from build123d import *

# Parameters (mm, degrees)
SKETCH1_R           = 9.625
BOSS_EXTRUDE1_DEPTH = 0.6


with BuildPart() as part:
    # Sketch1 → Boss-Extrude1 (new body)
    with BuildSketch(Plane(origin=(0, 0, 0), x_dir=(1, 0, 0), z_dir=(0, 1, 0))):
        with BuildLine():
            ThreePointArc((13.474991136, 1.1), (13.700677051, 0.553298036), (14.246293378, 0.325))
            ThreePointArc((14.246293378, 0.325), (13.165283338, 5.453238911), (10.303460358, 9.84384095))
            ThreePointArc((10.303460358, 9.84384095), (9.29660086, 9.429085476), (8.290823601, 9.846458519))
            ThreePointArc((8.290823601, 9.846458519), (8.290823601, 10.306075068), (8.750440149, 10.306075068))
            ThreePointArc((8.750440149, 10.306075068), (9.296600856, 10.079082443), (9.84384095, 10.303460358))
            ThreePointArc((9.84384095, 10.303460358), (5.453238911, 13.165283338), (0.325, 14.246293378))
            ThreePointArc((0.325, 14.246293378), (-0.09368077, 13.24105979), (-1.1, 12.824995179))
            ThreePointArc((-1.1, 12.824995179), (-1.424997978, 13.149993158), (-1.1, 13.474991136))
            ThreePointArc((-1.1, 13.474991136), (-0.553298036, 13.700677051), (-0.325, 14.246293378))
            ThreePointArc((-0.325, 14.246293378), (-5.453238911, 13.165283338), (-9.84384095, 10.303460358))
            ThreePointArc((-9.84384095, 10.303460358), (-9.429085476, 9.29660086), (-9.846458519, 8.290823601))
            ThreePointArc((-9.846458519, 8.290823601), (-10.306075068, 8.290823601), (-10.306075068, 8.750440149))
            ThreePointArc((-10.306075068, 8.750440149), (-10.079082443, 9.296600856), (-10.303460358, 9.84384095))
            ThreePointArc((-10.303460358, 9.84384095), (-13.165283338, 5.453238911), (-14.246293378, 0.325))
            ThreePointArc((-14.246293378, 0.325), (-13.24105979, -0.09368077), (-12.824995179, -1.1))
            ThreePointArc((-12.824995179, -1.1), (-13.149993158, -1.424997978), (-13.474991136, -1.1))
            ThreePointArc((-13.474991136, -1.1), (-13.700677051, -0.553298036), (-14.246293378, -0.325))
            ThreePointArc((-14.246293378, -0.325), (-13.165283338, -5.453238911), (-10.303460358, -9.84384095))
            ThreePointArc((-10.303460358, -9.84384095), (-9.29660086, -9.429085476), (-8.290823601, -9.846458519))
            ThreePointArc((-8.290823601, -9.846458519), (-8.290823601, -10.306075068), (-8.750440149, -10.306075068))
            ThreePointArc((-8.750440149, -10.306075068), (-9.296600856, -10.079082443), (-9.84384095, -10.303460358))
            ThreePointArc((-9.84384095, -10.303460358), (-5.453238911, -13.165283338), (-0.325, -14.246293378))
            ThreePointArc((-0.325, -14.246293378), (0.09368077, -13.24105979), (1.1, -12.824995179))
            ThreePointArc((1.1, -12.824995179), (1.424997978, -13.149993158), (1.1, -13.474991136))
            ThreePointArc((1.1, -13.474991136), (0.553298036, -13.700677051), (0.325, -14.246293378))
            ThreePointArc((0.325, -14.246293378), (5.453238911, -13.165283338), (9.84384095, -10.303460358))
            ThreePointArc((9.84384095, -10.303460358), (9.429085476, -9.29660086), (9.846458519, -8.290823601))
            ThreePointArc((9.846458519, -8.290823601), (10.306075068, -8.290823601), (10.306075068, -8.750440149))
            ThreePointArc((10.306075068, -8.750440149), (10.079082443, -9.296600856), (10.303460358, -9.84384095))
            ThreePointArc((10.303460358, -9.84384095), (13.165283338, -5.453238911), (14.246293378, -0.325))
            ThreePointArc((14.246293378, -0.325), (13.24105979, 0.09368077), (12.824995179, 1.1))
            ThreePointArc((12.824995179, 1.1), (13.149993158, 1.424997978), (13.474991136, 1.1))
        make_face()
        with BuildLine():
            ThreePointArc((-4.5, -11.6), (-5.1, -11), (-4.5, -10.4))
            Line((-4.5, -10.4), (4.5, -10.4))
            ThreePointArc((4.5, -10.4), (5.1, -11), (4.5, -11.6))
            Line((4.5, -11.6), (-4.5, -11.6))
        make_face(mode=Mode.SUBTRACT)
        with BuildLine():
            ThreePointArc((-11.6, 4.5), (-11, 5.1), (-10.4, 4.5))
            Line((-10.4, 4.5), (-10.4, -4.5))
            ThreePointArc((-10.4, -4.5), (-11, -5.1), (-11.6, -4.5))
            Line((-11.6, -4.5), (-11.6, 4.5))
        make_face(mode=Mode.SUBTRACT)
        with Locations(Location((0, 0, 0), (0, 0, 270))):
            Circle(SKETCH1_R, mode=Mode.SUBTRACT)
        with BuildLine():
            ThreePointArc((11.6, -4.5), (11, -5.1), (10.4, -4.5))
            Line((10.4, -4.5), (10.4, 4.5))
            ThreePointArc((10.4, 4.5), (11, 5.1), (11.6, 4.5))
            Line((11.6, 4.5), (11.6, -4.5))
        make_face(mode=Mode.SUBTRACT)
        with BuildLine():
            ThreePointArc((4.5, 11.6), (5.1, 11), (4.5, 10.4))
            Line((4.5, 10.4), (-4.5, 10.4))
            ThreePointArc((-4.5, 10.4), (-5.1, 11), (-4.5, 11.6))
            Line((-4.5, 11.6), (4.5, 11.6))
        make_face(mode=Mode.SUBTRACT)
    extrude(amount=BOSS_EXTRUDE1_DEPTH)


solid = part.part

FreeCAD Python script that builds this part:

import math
import FreeCAD as App
import Part
import Sketcher

V = App.Vector
Q = App.Units.Quantity

doc = App.newDocument("Part")
body = doc.addObject("PartDesign::Body", "Body")

# Sketch on XZ plane
sketch1 = doc.addObject("Sketcher::SketchObject", "Sketch")
body.addObject(sketch1)
sketch1.AttachmentSupport = (doc.XZ_Plane, [""])
sketch1.MapMode = "FlatFace"
sketch1.addGeometry(Part.ArcOfCircle(Part.Circle(V(14.25, -1.1, 0), V(0, 0, 1), 0.78), math.radians(90), math.radians(180)), False)
sketch1.addGeometry(Part.ArcOfCircle(Part.Circle(V(0, 0, 0), V(0, 0, 1), 14.25), math.radians(-44), math.radians(-1)), False)
sketch1.addGeometry(Part.ArcOfCircle(Part.Circle(V(9.3, -10.85, 0), V(0, 0, 1), 1.43), math.radians(45), math.radians(135)), False)
sketch1.addGeometry(Part.ArcOfCircle(Part.Circle(V(8.52, -10.08, 0), V(0, 0, 1), 0.32), math.radians(135), math.radians(315)), False)
sketch1.addGeometry(Part.ArcOfCircle(Part.Circle(V(9.3, -10.85, 0), V(0, 0, 1), 0.78), math.radians(45), math.radians(135)), False)
sketch1.addGeometry(Part.ArcOfCircle(Part.Circle(V(0, 0, 0), V(0, 0, 1), 14.25), math.radians(-89), math.radians(-46)), False)
sketch1.addGeometry(Part.ArcOfCircle(Part.Circle(V(-1.1, -14.25, 0), V(0, 0, 1), 1.43), math.radians(0), math.radians(90)), False)
sketch1.addGeometry(Part.ArcOfCircle(Part.Circle(V(-1.1, -13.15, 0), V(0, 0, 1), 0.32), math.radians(90), math.radians(270)), False)
sketch1.addGeometry(Part.ArcOfCircle(Part.Circle(V(-1.1, -14.25, 0), V(0, 0, 1), 0.78), math.radians(0), math.radians(90)), False)
sketch1.addGeometry(Part.ArcOfCircle(Part.Circle(V(0, 0, 0), V(0, 0, 1), 14.25), math.radians(-134), math.radians(-91)), False)
sketch1.addGeometry(Part.ArcOfCircle(Part.Circle(V(-10.85, -9.3, 0), V(0, 0, 1), 1.43), math.radians(-45), math.radians(45)), False)
sketch1.addGeometry(Part.ArcOfCircle(Part.Circle(V(-10.08, -8.52, 0), V(0, 0, 1), 0.32), math.radians(45), math.radians(225)), False)
sketch1.addGeometry(Part.ArcOfCircle(Part.Circle(V(-10.85, -9.3, 0), V(0, 0, 1), 0.78), math.radians(-45), math.radians(45)), False)
sketch1.addGeometry(Part.ArcOfCircle(Part.Circle(V(0, 0, 0), V(0, 0, 1), 14.25), math.radians(-179), math.radians(-136)), False)
sketch1.addGeometry(Part.ArcOfCircle(Part.Circle(V(-14.25, 1.1, 0), V(0, 0, 1), 1.43), math.radians(-90), math.radians(0)), False)
sketch1.addGeometry(Part.ArcOfCircle(Part.Circle(V(-13.15, 1.1, 0), V(0, 0, 1), 0.32), math.radians(0), math.radians(180)), False)
sketch1.addGeometry(Part.ArcOfCircle(Part.Circle(V(-14.25, 1.1, 0), V(0, 0, 1), 0.78), math.radians(-90), math.radians(0)), False)
sketch1.addGeometry(Part.ArcOfCircle(Part.Circle(V(0, 0, 0), V(0, 0, 1), 14.25), math.radians(136), math.radians(179)), False)
sketch1.addGeometry(Part.ArcOfCircle(Part.Circle(V(-9.3, 10.85, 0), V(0, 0, 1), 1.43), math.radians(-135), math.radians(-45)), False)
sketch1.addGeometry(Part.ArcOfCircle(Part.Circle(V(-8.52, 10.08, 0), V(0, 0, 1), 0.32), math.radians(-45), math.radians(135)), False)
sketch1.addGeometry(Part.ArcOfCircle(Part.Circle(V(-9.3, 10.85, 0), V(0, 0, 1), 0.78), math.radians(-135), math.radians(-45)), False)
sketch1.addGeometry(Part.ArcOfCircle(Part.Circle(V(0, 0, 0), V(0, 0, 1), 14.25), math.radians(91), math.radians(134)), False)
sketch1.addGeometry(Part.ArcOfCircle(Part.Circle(V(1.1, 14.25, 0), V(0, 0, 1), 1.43), math.radians(-180), math.radians(-90)), False)
sketch1.addGeometry(Part.ArcOfCircle(Part.Circle(V(1.1, 13.15, 0), V(0, 0, 1), 0.32), math.radians(-90), math.radians(90)), False)
sketch1.addGeometry(Part.ArcOfCircle(Part.Circle(V(1.1, 14.25, 0), V(0, 0, 1), 0.78), math.radians(-180), math.radians(-90)), False)
sketch1.addGeometry(Part.ArcOfCircle(Part.Circle(V(0, 0, 0), V(0, 0, 1), 14.25), math.radians(46), math.radians(89)), False)
sketch1.addGeometry(Part.ArcOfCircle(Part.Circle(V(10.85, 9.3, 0), V(0, 0, 1), 1.43), math.radians(135), math.radians(225)), False)
sketch1.addGeometry(Part.ArcOfCircle(Part.Circle(V(10.08, 8.52, 0), V(0, 0, 1), 0.32), math.radians(-135), math.radians(45)), False)
sketch1.addGeometry(Part.ArcOfCircle(Part.Circle(V(10.85, 9.3, 0), V(0, 0, 1), 0.78), math.radians(135), math.radians(225)), False)
sketch1.addGeometry(Part.ArcOfCircle(Part.Circle(V(0, 0, 0), V(0, 0, 1), 14.25), math.radians(1), math.radians(44)), False)
sketch1.addGeometry(Part.ArcOfCircle(Part.Circle(V(14.25, -1.1, 0), V(0, 0, 1), 1.43), math.radians(90), math.radians(180)), False)
sketch1.addGeometry(Part.ArcOfCircle(Part.Circle(V(13.15, -1.1, 0), V(0, 0, 1), 0.32), math.radians(-180), math.radians(0)), False)
sketch1.addGeometry(Part.LineSegment(V(4.5, 11.6, 0), V(-4.5, 11.6, 0)), False)
sketch1.addGeometry(Part.ArcOfCircle(Part.Circle(V(-4.5, 11, 0), V(0, 0, 1), 0.6), math.radians(90), math.radians(270)), False)
sketch1.addGeometry(Part.LineSegment(V(-4.5, 10.4, 0), V(4.5, 10.4, 0)), False)
sketch1.addGeometry(Part.ArcOfCircle(Part.Circle(V(4.5, 11, 0), V(0, 0, 1), 0.6), math.radians(-90), math.radians(90)), False)
sketch1.addGeometry(Part.LineSegment(V(-11.6, 4.5, 0), V(-11.6, -4.5, 0)), False)
sketch1.addGeometry(Part.ArcOfCircle(Part.Circle(V(-11, -4.5, 0), V(0, 0, 1), 0.6), math.radians(180), math.radians(360)), False)
sketch1.addGeometry(Part.LineSegment(V(-10.4, -4.5, 0), V(-10.4, 4.5, 0)), False)
sketch1.addGeometry(Part.ArcOfCircle(Part.Circle(V(-11, 4.5, 0), V(0, 0, 1), 0.6), math.radians(0), math.radians(180)), False)
sketch1.addGeometry(Part.Circle(V(0, 0, 0), V(0, 0, 1), 9.62), False)
sketch1.addGeometry(Part.LineSegment(V(11.6, -4.5, 0), V(11.6, 4.5, 0)), False)
sketch1.addGeometry(Part.ArcOfCircle(Part.Circle(V(11, 4.5, 0), V(0, 0, 1), 0.6), math.radians(0), math.radians(180)), False)
sketch1.addGeometry(Part.LineSegment(V(10.4, 4.5, 0), V(10.4, -4.5, 0)), False)
sketch1.addGeometry(Part.ArcOfCircle(Part.Circle(V(11, -4.5, 0), V(0, 0, 1), 0.6), math.radians(180), math.radians(360)), False)
sketch1.addGeometry(Part.LineSegment(V(-4.5, -11.6, 0), V(4.5, -11.6, 0)), False)
sketch1.addGeometry(Part.ArcOfCircle(Part.Circle(V(4.5, -11, 0), V(0, 0, 1), 0.6), math.radians(-90), math.radians(90)), False)
sketch1.addGeometry(Part.LineSegment(V(4.5, -10.4, 0), V(-4.5, -10.4, 0)), False)
sketch1.addGeometry(Part.ArcOfCircle(Part.Circle(V(-4.5, -11, 0), V(0, 0, 1), 0.6), math.radians(90), math.radians(270)), False)
sketch1.addConstraint(Sketcher.Constraint("Coincident", 0, 1, 1, 2))
sketch1.addConstraint(Sketcher.Constraint("Coincident", 1, 1, 2, 1))
sketch1.addConstraint(Sketcher.Constraint("Tangent", 2, 2, 3, 1))
sketch1.addConstraint(Sketcher.Constraint("Tangent", 3, 2, 4, 2))
sketch1.addConstraint(Sketcher.Constraint("Coincident", 4, 1, 5, 2))
sketch1.addConstraint(Sketcher.Constraint("Coincident", 5, 1, 6, 1))
sketch1.addConstraint(Sketcher.Constraint("Tangent", 6, 2, 7, 1))
sketch1.addConstraint(Sketcher.Constraint("Tangent", 7, 2, 8, 2))
sketch1.addConstraint(Sketcher.Constraint("Coincident", 8, 1, 9, 2))
sketch1.addConstraint(Sketcher.Constraint("Coincident", 9, 1, 10, 1))
sketch1.addConstraint(Sketcher.Constraint("Tangent", 10, 2, 11, 1))
sketch1.addConstraint(Sketcher.Constraint("Tangent", 11, 2, 12, 2))
sketch1.addConstraint(Sketcher.Constraint("Coincident", 12, 1, 13, 2))
sketch1.addConstraint(Sketcher.Constraint("Coincident", 13, 1, 14, 1))
sketch1.addConstraint(Sketcher.Constraint("Tangent", 14, 2, 15, 1))
sketch1.addConstraint(Sketcher.Constraint("Tangent", 15, 2, 16, 2))
sketch1.addConstraint(Sketcher.Constraint("Coincident", 16, 1, 17, 2))
sketch1.addConstraint(Sketcher.Constraint("Coincident", 17, 1, 18, 1))
sketch1.addConstraint(Sketcher.Constraint("Tangent", 18, 2, 19, 1))
sketch1.addConstraint(Sketcher.Constraint("Tangent", 19, 2, 20, 2))
sketch1.addConstraint(Sketcher.Constraint("Coincident", 20, 1, 21, 2))
sketch1.addConstraint(Sketcher.Constraint("Coincident", 21, 1, 22, 1))
sketch1.addConstraint(Sketcher.Constraint("Tangent", 22, 2, 23, 1))
sketch1.addConstraint(Sketcher.Constraint("Tangent", 23, 2, 24, 2))
sketch1.addConstraint(Sketcher.Constraint("Coincident", 24, 1, 25, 2))
sketch1.addConstraint(Sketcher.Constraint("Coincident", 25, 1, 26, 1))
sketch1.addConstraint(Sketcher.Constraint("Tangent", 26, 2, 27, 1))
sketch1.addConstraint(Sketcher.Constraint("Tangent", 27, 2, 28, 2))
sketch1.addConstraint(Sketcher.Constraint("Coincident", 28, 1, 29, 2))
sketch1.addConstraint(Sketcher.Constraint("Coincident", 29, 1, 30, 1))
sketch1.addConstraint(Sketcher.Constraint("Tangent", 30, 2, 31, 1))
sketch1.addConstraint(Sketcher.Constraint("Tangent", 31, 2, 0, 2))
sketch1.addConstraint(Sketcher.Constraint("Tangent", 32, 2, 33, 1))
sketch1.addConstraint(Sketcher.Constraint("Tangent", 33, 2, 34, 1))
sketch1.addConstraint(Sketcher.Constraint("Tangent", 34, 2, 35, 1))
sketch1.addConstraint(Sketcher.Constraint("Tangent", 35, 2, 32, 1))
sketch1.addConstraint(Sketcher.Constraint("Tangent", 36, 2, 37, 1))
sketch1.addConstraint(Sketcher.Constraint("Tangent", 37, 2, 38, 1))
sketch1.addConstraint(Sketcher.Constraint("Tangent", 38, 2, 39, 1))
sketch1.addConstraint(Sketcher.Constraint("Tangent", 39, 2, 36, 1))
sketch1.addConstraint(Sketcher.Constraint("Tangent", 41, 2, 42, 1))
sketch1.addConstraint(Sketcher.Constraint("Tangent", 42, 2, 43, 1))
sketch1.addConstraint(Sketcher.Constraint("Tangent", 43, 2, 44, 1))
sketch1.addConstraint(Sketcher.Constraint("Tangent", 44, 2, 41, 1))
sketch1.addConstraint(Sketcher.Constraint("Tangent", 45, 2, 46, 1))
sketch1.addConstraint(Sketcher.Constraint("Tangent", 46, 2, 47, 1))
sketch1.addConstraint(Sketcher.Constraint("Tangent", 47, 2, 48, 1))
sketch1.addConstraint(Sketcher.Constraint("Tangent", 48, 2, 45, 1))
sketch1.addConstraint(Sketcher.Constraint("Horizontal", 32))
sketch1.addConstraint(Sketcher.Constraint("Horizontal", 34))
sketch1.addConstraint(Sketcher.Constraint("Vertical", 36))
sketch1.addConstraint(Sketcher.Constraint("Vertical", 38))
sketch1.addConstraint(Sketcher.Constraint("Vertical", 41))
sketch1.addConstraint(Sketcher.Constraint("Vertical", 43))
sketch1.addConstraint(Sketcher.Constraint("Horizontal", 45))
sketch1.addConstraint(Sketcher.Constraint("Horizontal", 47))
sketch1.addConstraint(Sketcher.Constraint("Coincident", 1, 3, -1, 1))
sketch1.addConstraint(Sketcher.Constraint("Coincident", 5, 3, -1, 1))
sketch1.addConstraint(Sketcher.Constraint("Coincident", 9, 3, -1, 1))
sketch1.addConstraint(Sketcher.Constraint("Coincident", 13, 3, -1, 1))
sketch1.addConstraint(Sketcher.Constraint("Coincident", 17, 3, -1, 1))
sketch1.addConstraint(Sketcher.Constraint("Coincident", 21, 3, -1, 1))
sketch1.addConstraint(Sketcher.Constraint("Coincident", 25, 3, -1, 1))
sketch1.addConstraint(Sketcher.Constraint("Coincident", 29, 3, -1, 1))
sketch1.addConstraint(Sketcher.Constraint("Coincident", 40, 3, -1, 1))
sketch1.addConstraint(Sketcher.Constraint("Coincident", 4, 3, 2, 3))
sketch1.addConstraint(Sketcher.Constraint("Coincident", 8, 3, 6, 3))
sketch1.addConstraint(Sketcher.Constraint("Coincident", 12, 3, 10, 3))
sketch1.addConstraint(Sketcher.Constraint("Coincident", 16, 3, 14, 3))
sketch1.addConstraint(Sketcher.Constraint("Coincident", 20, 3, 18, 3))
sketch1.addConstraint(Sketcher.Constraint("Coincident", 24, 3, 22, 3))
sketch1.addConstraint(Sketcher.Constraint("Coincident", 28, 3, 26, 3))
sketch1.addConstraint(Sketcher.Constraint("Coincident", 30, 3, 0, 3))
sketch1.addConstraint(Sketcher.Constraint("Equal", 0, 4))
sketch1.addConstraint(Sketcher.Constraint("Equal", 1, 5))
sketch1.addConstraint(Sketcher.Constraint("Equal", 2, 6))
sketch1.addConstraint(Sketcher.Constraint("Equal", 3, 7))
sketch1.addConstraint(Sketcher.Constraint("Equal", 5, 9))
sketch1.addConstraint(Sketcher.Constraint("Equal", 6, 10))
sketch1.addConstraint(Sketcher.Constraint("Equal", 7, 11))
sketch1.addConstraint(Sketcher.Constraint("Equal", 9, 13))
sketch1.addConstraint(Sketcher.Constraint("Equal", 10, 14))
sketch1.addConstraint(Sketcher.Constraint("Equal", 11, 15))
sketch1.addConstraint(Sketcher.Constraint("Equal", 13, 17))
sketch1.addConstraint(Sketcher.Constraint("Equal", 14, 18))
sketch1.addConstraint(Sketcher.Constraint("Equal", 15, 19))
sketch1.addConstraint(Sketcher.Constraint("Equal", 17, 21))
sketch1.addConstraint(Sketcher.Constraint("Equal", 18, 22))
sketch1.addConstraint(Sketcher.Constraint("Equal", 19, 23))
sketch1.addConstraint(Sketcher.Constraint("Equal", 21, 25))
sketch1.addConstraint(Sketcher.Constraint("Equal", 22, 26))
sketch1.addConstraint(Sketcher.Constraint("Equal", 23, 27))
sketch1.addConstraint(Sketcher.Constraint("Equal", 25, 29))
sketch1.addConstraint(Sketcher.Constraint("Equal", 26, 30))
sketch1.addConstraint(Sketcher.Constraint("Equal", 35, 37))
sketch1.addConstraint(Sketcher.Constraint("Equal", 39, 42))
sketch1.addConstraint(Sketcher.Constraint("Equal", 44, 46))
sketch1.addConstraint(Sketcher.Constraint("Symmetric", 0, 3, 14, 3, -1, 1))
sketch1.addConstraint(Sketcher.Constraint("Symmetric", 2, 3, 18, 3, -1, 1))
sketch1.addConstraint(Sketcher.Constraint("Symmetric", 6, 3, 22, 3, -1, 1))
sketch1.addConstraint(Sketcher.Constraint("Symmetric", 10, 3, 26, 3, -1, 1))
sketch1.addConstraint(Sketcher.Constraint("Symmetric", 37, 3, 42, 3, -1, 1))
sketch1.addConstraint(Sketcher.Constraint("Symmetric", 33, 3, 46, 3, -1, 1))
sketch1.addConstraint(Sketcher.Constraint("Horizontal", 14, 3, 15, 3))
sketch1.addConstraint(Sketcher.Constraint("Horizontal", 30, 3, 31, 3))
sketch1.addConstraint(Sketcher.Constraint("Horizontal", 39, 3, 42, 3))
sketch1.addConstraint(Sketcher.Constraint("Horizontal", 37, 3, 44, 3))
sketch1.addConstraint(Sketcher.Constraint("Horizontal", 5, 1, 8, 1))
sketch1.addConstraint(Sketcher.Constraint("Horizontal", 4, 1, 9, 1))
sketch1.addConstraint(Sketcher.Constraint("Horizontal", 0, 1, 13, 1))
sketch1.addConstraint(Sketcher.Constraint("Vertical", 6, 3, 7, 3))
sketch1.addConstraint(Sketcher.Constraint("Vertical", 22, 3, 23, 3))
sketch1.addConstraint(Sketcher.Constraint("Vertical", 35, 3, 46, 3))
sketch1.addConstraint(Sketcher.Constraint("Vertical", 33, 3, 48, 3))
sketch1.addConstraint(Sketcher.Constraint("Equal", 47, 36))
sketch1.addConstraint(Sketcher.Constraint("Radius", 33, Q("0.6 mm")))
sketch1.addConstraint(Sketcher.Constraint("Diameter", 40, Q("19.25 mm")))
sketch1.addConstraint(Sketcher.Constraint("DistanceX", 32, 2, 32, 1, Q("9 mm")))
sketch1.addConstraint(Sketcher.Constraint("Radius", 1, Q("14.25 mm")))
sketch1.addConstraint(Sketcher.Constraint("DistanceY", -1, 1, 33, 3, Q("11 mm")))
sketch1.addConstraint(Sketcher.Constraint("DistanceX", 37, 3, -1, 1, Q("11 mm")))
sketch1.addConstraint(Sketcher.Constraint("DistanceY", 0, 3, -1, 1, Q("1.1 mm")))
sketch1.addConstraint(Sketcher.Constraint("DistanceX", -1, 1, 0, 3, Q("14.25 mm")))
sketch1.addConstraint(Sketcher.Constraint("DistanceY", 6, 3, -1, 1, Q("14.25 mm")))
sketch1.addConstraint(Sketcher.Constraint("Radius", 0, Q("0.775009 mm")))
sketch1.addConstraint(Sketcher.Constraint("DistanceY", 2, 3, -1, 1, Q("10.854089 mm")))
sketch1.addConstraint(Sketcher.Constraint("DistanceX", -1, 1, 3, 3, Q("8.520632 mm")))
sketch1.addConstraint(Sketcher.Constraint("DistanceX", 10, 3, -1, 1, Q("10.854089 mm")))
sketch1.addConstraint(Sketcher.Constraint("DistanceY", 11, 3, -1, 1, Q("8.520632 mm")))
sketch1.addConstraint(Sketcher.Constraint("DistanceX", 19, 3, -1, 1, Q("8.520632 mm")))
sketch1.addConstraint(Sketcher.Constraint("DistanceY", -1, 1, 27, 3, Q("8.520632 mm")))
sketch1.addConstraint(Sketcher.Constraint("DistanceX", -1, 1, 1, 1, Q("10.30346 mm")))
pad1 = doc.addObject("PartDesign::Pad", "Pad")
body.addObject(pad1)
pad1.Profile = sketch1
pad1.Length = 0.6
pad1.Reversed = True

doc.recompute()
